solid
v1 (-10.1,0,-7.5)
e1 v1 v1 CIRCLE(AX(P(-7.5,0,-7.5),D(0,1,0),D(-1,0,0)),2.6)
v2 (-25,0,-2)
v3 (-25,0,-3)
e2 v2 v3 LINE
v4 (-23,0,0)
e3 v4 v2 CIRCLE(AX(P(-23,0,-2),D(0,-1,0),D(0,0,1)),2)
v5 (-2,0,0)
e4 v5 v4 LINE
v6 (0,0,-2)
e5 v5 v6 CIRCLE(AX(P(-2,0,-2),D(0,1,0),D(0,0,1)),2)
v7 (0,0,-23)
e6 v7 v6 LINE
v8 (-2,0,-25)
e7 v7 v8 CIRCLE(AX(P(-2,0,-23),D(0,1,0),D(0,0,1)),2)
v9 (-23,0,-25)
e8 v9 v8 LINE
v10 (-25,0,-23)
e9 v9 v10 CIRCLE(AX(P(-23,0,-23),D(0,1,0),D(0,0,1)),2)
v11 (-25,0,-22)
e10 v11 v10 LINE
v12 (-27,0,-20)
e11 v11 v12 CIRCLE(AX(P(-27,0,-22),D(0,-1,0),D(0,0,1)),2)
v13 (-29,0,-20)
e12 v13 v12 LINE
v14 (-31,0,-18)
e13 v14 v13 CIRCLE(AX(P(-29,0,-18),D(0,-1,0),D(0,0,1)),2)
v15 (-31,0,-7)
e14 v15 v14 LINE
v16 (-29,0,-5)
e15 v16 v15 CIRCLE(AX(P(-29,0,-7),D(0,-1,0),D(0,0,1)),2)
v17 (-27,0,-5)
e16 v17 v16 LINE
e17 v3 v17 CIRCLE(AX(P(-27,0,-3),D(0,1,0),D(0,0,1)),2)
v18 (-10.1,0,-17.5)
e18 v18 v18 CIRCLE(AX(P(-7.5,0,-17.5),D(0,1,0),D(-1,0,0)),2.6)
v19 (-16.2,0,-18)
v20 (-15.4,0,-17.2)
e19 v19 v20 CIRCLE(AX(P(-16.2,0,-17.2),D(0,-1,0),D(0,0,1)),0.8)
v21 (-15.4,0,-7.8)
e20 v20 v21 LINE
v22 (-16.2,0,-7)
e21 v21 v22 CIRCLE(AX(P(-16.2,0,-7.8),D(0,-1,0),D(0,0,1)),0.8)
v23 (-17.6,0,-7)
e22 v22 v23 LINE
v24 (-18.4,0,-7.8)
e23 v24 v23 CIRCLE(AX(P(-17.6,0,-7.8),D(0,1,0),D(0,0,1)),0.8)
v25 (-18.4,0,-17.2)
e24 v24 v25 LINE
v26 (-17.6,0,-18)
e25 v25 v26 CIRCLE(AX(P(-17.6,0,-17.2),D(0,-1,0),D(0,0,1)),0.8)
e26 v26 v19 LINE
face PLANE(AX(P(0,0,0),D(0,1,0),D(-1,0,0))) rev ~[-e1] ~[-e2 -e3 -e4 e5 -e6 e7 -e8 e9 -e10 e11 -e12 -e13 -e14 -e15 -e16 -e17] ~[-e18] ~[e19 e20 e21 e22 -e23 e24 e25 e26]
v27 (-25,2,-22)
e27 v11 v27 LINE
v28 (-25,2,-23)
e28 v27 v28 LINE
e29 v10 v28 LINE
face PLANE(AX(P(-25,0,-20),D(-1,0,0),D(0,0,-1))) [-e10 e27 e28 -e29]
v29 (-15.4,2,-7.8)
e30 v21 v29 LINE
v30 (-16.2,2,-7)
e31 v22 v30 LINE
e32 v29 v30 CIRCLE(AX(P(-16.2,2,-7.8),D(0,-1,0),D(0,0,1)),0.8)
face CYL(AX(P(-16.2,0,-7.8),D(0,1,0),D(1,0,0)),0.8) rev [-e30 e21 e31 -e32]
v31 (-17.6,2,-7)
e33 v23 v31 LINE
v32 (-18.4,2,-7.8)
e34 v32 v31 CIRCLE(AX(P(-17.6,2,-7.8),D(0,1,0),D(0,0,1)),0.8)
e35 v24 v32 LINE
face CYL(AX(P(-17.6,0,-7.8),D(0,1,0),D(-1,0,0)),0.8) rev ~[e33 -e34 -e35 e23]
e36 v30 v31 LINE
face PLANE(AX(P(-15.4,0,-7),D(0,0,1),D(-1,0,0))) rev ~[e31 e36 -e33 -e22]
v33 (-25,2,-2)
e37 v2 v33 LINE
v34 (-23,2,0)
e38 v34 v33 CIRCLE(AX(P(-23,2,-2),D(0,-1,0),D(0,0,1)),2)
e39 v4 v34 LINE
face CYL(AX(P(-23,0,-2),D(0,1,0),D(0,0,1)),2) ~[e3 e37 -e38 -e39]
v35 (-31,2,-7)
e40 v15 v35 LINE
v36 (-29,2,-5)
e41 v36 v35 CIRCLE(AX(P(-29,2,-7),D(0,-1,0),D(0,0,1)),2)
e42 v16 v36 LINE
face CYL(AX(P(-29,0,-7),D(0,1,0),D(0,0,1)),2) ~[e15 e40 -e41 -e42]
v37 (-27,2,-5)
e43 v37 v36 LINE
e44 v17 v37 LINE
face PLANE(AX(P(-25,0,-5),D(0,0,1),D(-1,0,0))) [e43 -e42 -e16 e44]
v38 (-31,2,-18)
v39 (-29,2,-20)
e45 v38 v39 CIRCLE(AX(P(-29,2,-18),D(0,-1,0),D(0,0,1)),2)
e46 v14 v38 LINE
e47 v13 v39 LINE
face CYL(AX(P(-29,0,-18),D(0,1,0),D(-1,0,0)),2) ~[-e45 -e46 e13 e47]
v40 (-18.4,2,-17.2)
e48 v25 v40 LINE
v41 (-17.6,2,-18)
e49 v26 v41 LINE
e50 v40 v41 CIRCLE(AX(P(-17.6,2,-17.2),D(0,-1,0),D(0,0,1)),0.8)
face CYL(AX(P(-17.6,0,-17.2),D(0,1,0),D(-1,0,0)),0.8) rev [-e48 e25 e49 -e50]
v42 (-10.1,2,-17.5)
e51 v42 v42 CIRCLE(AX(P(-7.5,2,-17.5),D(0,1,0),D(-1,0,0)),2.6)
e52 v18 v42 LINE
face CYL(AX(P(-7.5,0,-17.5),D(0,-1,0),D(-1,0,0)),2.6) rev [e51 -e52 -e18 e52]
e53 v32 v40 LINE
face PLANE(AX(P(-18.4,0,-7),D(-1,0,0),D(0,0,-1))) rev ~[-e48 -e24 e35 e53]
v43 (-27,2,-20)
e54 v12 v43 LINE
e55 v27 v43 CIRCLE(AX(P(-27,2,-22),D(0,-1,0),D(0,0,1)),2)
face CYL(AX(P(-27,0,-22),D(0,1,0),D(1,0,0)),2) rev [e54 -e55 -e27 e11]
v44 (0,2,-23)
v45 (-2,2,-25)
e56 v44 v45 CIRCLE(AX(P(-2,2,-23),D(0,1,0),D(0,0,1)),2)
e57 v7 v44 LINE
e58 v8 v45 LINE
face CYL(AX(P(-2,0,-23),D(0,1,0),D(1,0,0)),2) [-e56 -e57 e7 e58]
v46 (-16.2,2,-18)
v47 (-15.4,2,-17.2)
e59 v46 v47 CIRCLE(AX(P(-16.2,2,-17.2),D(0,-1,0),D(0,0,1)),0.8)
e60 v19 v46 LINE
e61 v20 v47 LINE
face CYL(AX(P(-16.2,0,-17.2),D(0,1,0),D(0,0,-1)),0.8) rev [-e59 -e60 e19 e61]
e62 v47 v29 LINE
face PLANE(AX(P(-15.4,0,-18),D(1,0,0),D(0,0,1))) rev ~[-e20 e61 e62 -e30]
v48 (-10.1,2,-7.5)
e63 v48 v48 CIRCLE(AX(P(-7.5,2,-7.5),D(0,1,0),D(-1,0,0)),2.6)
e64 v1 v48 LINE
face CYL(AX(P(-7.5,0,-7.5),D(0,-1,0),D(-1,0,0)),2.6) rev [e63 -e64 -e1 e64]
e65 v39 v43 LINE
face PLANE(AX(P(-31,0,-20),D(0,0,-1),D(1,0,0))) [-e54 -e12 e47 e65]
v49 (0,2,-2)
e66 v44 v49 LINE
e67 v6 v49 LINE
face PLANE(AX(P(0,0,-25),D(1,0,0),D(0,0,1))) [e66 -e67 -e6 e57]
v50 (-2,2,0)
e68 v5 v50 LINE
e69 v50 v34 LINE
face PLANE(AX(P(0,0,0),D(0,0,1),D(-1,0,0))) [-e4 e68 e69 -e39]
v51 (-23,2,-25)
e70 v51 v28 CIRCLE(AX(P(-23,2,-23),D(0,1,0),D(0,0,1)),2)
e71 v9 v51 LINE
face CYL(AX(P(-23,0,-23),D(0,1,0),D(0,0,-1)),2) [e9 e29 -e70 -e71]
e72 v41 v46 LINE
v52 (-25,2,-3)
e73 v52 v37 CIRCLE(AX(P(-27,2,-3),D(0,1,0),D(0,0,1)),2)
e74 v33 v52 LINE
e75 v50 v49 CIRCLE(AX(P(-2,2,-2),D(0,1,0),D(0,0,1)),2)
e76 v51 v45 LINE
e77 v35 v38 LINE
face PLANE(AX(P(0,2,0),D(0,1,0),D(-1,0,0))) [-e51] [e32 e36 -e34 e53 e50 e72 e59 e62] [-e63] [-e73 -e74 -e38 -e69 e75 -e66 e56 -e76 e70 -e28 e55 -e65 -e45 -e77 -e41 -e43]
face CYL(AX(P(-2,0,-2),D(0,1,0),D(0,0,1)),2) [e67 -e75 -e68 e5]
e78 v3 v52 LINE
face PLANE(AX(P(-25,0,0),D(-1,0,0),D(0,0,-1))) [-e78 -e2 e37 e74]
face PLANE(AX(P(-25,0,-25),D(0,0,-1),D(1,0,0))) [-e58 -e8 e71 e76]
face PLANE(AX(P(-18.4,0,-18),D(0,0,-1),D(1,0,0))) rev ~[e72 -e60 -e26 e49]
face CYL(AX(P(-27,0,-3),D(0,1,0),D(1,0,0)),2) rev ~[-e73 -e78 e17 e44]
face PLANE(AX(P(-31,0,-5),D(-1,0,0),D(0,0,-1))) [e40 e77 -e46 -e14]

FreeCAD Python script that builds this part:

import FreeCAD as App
import Part
import Sketcher
from FreeCAD import Vector


def edges_at(feature, points):
    """Names of the edges that pass closest to the given points."""
    edges = feature.Shape.Edges
    near = lambda p: min(range(len(edges)), key=lambda i: edges[i].distToShape(Part.Vertex(*p))[0])
    return sorted({f"Edge{near(p) + 1}" for p in points})

doc = App.newDocument("Part")
body = doc.addObject("PartDesign::Body", "Body")

# Sketch on XZ plane
sketch1 = doc.addObject("Sketcher::SketchObject", "Sketch")
body.addObject(sketch1)
sketch1.AttachmentSupport = (doc.XZ_Plane, [""])
sketch1.MapMode = "FlatFace"
sketch1.addGeometry([
    Part.LineSegment(Vector(-25, 0, 0), Vector(0, 0, 0)),  # 0
    Part.LineSegment(Vector(0, 0, 0), Vector(0, -25, 0)),  # 1
    Part.LineSegment(Vector(0, -25, 0), Vector(-25, -25, 0)),  # 2
    Part.LineSegment(Vector(-25, -25, 0), Vector(-25, -20, 0)),  # 3
    Part.LineSegment(Vector(-25, -20, 0), Vector(-31, -20, 0)),  # 4
    Part.LineSegment(Vector(-31, -20, 0), Vector(-31, -5, 0)),  # 5
    Part.LineSegment(Vector(-31, -5, 0), Vector(-25, -5, 0)),  # 6
    Part.LineSegment(Vector(-25, -5, 0), Vector(-25, 0, 0)),  # 7
    Part.Circle(Vector(-7.5, -17.5, 0), Vector(0, 0, 1), 2.6),  # 8
    Part.Circle(Vector(-7.5, -7.5, 0), Vector(0, 0, 1), 2.6),  # 9
    Part.LineSegment(Vector(-18.4, -7, 0), Vector(-18.4, -18, 0)),  # 10
    Part.LineSegment(Vector(-18.4, -18, 0), Vector(-15.4, -18, 0)),  # 11
    Part.LineSegment(Vector(-15.4, -18, 0), Vector(-15.4, -7, 0)),  # 12
    Part.LineSegment(Vector(-15.4, -7, 0), Vector(-18.4, -7, 0)),  # 13
], False)
sketch1.addConstraint([
    Sketcher.Constraint("Coincident", 0, 2, 1, 1),
    Sketcher.Constraint("Coincident", 1, 2, 2, 1),
    Sketcher.Constraint("Coincident", 2, 2, 3, 1),
    Sketcher.Constraint("Coincident", 3, 2, 4, 1),
    Sketcher.Constraint("Coincident", 4, 2, 5, 1),
    Sketcher.Constraint("Coincident", 5, 2, 6, 1),
    Sketcher.Constraint("Coincident", 6, 2, 7, 1),
    Sketcher.Constraint("Coincident", 7, 2, 0, 1),
    Sketcher.Constraint("Coincident", 10, 2, 11, 1),
    Sketcher.Constraint("Coincident", 11, 2, 12, 1),
    Sketcher.Constraint("Coincident", 12, 2, 13, 1),
    Sketcher.Constraint("Coincident", 13, 2, 10, 1),
    Sketcher.Constraint("Horizontal", 0),
    Sketcher.Constraint("Vertical", 1),
    Sketcher.Constraint("Horizontal", 2),
    Sketcher.Constraint("Vertical", 3),
    Sketcher.Constraint("Horizontal", 4),
    Sketcher.Constraint("Vertical", 5),
    Sketcher.Constraint("Horizontal", 6),
    Sketcher.Constraint("Vertical", 7),
    Sketcher.Constraint("Vertical", 10),
    Sketcher.Constraint("Horizontal", 11),
    Sketcher.Constraint("Vertical", 12),
    Sketcher.Constraint("Horizontal", 13),
    Sketcher.Constraint("Coincident", 0, 2, -1, 1),
    Sketcher.Constraint("Equal", 8, 9),
    Sketcher.Constraint("Vertical", 8, 3, 9, 3),
    Sketcher.Constraint("Vertical", 3, 2, 6, 2),
    Sketcher.Constraint("Equal", 2, 1),
    Sketcher.Constraint("Equal", 3, 7),
    Sketcher.Constraint("Diameter", 8, 5.2),
    Sketcher.Constraint("DistanceX", 0, 1, 0, 2, 25.0),
    Sketcher.Constraint("DistanceX", 4, 2, 4, 1, 6.0),
    Sketcher.Constraint("DistanceX", 11, 1, 11, 2, 3.0),
    Sketcher.Constraint("DistanceY", 5, 1, 5, 2, 15.0),
    Sketcher.Constraint("DistanceY", 10, 2, 10, 1, 11.0),
    Sketcher.Constraint("DistanceY", 8, 3, 9, 3, 10.0),
    Sketcher.Constraint("DistanceX", 8, 3, -1, 1, 7.5),
    Sketcher.Constraint("DistanceY", 9, 3, -1, 1, 7.5),
    Sketcher.Constraint("DistanceX", 10, 2, -1, 1, 18.4),
    Sketcher.Constraint("DistanceY", 10, 2, -1, 1, 18.0),
])
pad1 = doc.addObject("PartDesign::Pad", "Pad")
body.addObject(pad1)
pad1.Profile = sketch1
pad1.Length = 2
pad1.Reversed = True
doc.recompute()

fillet = doc.addObject("PartDesign::Fillet", "Fillet")
body.addObject(fillet)
fillet.Base = (pad1, edges_at(pad1, [
    (0, 1, 0),
    (0, 1, -25),
    (-25, 1, 0),
    (-25, 1, -5),
    (-31, 1, -5),
    (-31, 1, -20),
    (-25, 1, -20),
    (-25, 1, -25),
]))
fillet.Radius = 2
doc.recompute()

fillet2 = doc.addObject("PartDesign::Fillet", "Fillet001")
body.addObject(fillet2)
fillet2.Base = (fillet, edges_at(fillet, [
    (-18.4, 1, -18),
    (-15.4, 1, -18),
    (-18.4, 1, -7),
    (-15.4, 1, -7),
]))
fillet2.Radius = 0.8

doc.recompute()
